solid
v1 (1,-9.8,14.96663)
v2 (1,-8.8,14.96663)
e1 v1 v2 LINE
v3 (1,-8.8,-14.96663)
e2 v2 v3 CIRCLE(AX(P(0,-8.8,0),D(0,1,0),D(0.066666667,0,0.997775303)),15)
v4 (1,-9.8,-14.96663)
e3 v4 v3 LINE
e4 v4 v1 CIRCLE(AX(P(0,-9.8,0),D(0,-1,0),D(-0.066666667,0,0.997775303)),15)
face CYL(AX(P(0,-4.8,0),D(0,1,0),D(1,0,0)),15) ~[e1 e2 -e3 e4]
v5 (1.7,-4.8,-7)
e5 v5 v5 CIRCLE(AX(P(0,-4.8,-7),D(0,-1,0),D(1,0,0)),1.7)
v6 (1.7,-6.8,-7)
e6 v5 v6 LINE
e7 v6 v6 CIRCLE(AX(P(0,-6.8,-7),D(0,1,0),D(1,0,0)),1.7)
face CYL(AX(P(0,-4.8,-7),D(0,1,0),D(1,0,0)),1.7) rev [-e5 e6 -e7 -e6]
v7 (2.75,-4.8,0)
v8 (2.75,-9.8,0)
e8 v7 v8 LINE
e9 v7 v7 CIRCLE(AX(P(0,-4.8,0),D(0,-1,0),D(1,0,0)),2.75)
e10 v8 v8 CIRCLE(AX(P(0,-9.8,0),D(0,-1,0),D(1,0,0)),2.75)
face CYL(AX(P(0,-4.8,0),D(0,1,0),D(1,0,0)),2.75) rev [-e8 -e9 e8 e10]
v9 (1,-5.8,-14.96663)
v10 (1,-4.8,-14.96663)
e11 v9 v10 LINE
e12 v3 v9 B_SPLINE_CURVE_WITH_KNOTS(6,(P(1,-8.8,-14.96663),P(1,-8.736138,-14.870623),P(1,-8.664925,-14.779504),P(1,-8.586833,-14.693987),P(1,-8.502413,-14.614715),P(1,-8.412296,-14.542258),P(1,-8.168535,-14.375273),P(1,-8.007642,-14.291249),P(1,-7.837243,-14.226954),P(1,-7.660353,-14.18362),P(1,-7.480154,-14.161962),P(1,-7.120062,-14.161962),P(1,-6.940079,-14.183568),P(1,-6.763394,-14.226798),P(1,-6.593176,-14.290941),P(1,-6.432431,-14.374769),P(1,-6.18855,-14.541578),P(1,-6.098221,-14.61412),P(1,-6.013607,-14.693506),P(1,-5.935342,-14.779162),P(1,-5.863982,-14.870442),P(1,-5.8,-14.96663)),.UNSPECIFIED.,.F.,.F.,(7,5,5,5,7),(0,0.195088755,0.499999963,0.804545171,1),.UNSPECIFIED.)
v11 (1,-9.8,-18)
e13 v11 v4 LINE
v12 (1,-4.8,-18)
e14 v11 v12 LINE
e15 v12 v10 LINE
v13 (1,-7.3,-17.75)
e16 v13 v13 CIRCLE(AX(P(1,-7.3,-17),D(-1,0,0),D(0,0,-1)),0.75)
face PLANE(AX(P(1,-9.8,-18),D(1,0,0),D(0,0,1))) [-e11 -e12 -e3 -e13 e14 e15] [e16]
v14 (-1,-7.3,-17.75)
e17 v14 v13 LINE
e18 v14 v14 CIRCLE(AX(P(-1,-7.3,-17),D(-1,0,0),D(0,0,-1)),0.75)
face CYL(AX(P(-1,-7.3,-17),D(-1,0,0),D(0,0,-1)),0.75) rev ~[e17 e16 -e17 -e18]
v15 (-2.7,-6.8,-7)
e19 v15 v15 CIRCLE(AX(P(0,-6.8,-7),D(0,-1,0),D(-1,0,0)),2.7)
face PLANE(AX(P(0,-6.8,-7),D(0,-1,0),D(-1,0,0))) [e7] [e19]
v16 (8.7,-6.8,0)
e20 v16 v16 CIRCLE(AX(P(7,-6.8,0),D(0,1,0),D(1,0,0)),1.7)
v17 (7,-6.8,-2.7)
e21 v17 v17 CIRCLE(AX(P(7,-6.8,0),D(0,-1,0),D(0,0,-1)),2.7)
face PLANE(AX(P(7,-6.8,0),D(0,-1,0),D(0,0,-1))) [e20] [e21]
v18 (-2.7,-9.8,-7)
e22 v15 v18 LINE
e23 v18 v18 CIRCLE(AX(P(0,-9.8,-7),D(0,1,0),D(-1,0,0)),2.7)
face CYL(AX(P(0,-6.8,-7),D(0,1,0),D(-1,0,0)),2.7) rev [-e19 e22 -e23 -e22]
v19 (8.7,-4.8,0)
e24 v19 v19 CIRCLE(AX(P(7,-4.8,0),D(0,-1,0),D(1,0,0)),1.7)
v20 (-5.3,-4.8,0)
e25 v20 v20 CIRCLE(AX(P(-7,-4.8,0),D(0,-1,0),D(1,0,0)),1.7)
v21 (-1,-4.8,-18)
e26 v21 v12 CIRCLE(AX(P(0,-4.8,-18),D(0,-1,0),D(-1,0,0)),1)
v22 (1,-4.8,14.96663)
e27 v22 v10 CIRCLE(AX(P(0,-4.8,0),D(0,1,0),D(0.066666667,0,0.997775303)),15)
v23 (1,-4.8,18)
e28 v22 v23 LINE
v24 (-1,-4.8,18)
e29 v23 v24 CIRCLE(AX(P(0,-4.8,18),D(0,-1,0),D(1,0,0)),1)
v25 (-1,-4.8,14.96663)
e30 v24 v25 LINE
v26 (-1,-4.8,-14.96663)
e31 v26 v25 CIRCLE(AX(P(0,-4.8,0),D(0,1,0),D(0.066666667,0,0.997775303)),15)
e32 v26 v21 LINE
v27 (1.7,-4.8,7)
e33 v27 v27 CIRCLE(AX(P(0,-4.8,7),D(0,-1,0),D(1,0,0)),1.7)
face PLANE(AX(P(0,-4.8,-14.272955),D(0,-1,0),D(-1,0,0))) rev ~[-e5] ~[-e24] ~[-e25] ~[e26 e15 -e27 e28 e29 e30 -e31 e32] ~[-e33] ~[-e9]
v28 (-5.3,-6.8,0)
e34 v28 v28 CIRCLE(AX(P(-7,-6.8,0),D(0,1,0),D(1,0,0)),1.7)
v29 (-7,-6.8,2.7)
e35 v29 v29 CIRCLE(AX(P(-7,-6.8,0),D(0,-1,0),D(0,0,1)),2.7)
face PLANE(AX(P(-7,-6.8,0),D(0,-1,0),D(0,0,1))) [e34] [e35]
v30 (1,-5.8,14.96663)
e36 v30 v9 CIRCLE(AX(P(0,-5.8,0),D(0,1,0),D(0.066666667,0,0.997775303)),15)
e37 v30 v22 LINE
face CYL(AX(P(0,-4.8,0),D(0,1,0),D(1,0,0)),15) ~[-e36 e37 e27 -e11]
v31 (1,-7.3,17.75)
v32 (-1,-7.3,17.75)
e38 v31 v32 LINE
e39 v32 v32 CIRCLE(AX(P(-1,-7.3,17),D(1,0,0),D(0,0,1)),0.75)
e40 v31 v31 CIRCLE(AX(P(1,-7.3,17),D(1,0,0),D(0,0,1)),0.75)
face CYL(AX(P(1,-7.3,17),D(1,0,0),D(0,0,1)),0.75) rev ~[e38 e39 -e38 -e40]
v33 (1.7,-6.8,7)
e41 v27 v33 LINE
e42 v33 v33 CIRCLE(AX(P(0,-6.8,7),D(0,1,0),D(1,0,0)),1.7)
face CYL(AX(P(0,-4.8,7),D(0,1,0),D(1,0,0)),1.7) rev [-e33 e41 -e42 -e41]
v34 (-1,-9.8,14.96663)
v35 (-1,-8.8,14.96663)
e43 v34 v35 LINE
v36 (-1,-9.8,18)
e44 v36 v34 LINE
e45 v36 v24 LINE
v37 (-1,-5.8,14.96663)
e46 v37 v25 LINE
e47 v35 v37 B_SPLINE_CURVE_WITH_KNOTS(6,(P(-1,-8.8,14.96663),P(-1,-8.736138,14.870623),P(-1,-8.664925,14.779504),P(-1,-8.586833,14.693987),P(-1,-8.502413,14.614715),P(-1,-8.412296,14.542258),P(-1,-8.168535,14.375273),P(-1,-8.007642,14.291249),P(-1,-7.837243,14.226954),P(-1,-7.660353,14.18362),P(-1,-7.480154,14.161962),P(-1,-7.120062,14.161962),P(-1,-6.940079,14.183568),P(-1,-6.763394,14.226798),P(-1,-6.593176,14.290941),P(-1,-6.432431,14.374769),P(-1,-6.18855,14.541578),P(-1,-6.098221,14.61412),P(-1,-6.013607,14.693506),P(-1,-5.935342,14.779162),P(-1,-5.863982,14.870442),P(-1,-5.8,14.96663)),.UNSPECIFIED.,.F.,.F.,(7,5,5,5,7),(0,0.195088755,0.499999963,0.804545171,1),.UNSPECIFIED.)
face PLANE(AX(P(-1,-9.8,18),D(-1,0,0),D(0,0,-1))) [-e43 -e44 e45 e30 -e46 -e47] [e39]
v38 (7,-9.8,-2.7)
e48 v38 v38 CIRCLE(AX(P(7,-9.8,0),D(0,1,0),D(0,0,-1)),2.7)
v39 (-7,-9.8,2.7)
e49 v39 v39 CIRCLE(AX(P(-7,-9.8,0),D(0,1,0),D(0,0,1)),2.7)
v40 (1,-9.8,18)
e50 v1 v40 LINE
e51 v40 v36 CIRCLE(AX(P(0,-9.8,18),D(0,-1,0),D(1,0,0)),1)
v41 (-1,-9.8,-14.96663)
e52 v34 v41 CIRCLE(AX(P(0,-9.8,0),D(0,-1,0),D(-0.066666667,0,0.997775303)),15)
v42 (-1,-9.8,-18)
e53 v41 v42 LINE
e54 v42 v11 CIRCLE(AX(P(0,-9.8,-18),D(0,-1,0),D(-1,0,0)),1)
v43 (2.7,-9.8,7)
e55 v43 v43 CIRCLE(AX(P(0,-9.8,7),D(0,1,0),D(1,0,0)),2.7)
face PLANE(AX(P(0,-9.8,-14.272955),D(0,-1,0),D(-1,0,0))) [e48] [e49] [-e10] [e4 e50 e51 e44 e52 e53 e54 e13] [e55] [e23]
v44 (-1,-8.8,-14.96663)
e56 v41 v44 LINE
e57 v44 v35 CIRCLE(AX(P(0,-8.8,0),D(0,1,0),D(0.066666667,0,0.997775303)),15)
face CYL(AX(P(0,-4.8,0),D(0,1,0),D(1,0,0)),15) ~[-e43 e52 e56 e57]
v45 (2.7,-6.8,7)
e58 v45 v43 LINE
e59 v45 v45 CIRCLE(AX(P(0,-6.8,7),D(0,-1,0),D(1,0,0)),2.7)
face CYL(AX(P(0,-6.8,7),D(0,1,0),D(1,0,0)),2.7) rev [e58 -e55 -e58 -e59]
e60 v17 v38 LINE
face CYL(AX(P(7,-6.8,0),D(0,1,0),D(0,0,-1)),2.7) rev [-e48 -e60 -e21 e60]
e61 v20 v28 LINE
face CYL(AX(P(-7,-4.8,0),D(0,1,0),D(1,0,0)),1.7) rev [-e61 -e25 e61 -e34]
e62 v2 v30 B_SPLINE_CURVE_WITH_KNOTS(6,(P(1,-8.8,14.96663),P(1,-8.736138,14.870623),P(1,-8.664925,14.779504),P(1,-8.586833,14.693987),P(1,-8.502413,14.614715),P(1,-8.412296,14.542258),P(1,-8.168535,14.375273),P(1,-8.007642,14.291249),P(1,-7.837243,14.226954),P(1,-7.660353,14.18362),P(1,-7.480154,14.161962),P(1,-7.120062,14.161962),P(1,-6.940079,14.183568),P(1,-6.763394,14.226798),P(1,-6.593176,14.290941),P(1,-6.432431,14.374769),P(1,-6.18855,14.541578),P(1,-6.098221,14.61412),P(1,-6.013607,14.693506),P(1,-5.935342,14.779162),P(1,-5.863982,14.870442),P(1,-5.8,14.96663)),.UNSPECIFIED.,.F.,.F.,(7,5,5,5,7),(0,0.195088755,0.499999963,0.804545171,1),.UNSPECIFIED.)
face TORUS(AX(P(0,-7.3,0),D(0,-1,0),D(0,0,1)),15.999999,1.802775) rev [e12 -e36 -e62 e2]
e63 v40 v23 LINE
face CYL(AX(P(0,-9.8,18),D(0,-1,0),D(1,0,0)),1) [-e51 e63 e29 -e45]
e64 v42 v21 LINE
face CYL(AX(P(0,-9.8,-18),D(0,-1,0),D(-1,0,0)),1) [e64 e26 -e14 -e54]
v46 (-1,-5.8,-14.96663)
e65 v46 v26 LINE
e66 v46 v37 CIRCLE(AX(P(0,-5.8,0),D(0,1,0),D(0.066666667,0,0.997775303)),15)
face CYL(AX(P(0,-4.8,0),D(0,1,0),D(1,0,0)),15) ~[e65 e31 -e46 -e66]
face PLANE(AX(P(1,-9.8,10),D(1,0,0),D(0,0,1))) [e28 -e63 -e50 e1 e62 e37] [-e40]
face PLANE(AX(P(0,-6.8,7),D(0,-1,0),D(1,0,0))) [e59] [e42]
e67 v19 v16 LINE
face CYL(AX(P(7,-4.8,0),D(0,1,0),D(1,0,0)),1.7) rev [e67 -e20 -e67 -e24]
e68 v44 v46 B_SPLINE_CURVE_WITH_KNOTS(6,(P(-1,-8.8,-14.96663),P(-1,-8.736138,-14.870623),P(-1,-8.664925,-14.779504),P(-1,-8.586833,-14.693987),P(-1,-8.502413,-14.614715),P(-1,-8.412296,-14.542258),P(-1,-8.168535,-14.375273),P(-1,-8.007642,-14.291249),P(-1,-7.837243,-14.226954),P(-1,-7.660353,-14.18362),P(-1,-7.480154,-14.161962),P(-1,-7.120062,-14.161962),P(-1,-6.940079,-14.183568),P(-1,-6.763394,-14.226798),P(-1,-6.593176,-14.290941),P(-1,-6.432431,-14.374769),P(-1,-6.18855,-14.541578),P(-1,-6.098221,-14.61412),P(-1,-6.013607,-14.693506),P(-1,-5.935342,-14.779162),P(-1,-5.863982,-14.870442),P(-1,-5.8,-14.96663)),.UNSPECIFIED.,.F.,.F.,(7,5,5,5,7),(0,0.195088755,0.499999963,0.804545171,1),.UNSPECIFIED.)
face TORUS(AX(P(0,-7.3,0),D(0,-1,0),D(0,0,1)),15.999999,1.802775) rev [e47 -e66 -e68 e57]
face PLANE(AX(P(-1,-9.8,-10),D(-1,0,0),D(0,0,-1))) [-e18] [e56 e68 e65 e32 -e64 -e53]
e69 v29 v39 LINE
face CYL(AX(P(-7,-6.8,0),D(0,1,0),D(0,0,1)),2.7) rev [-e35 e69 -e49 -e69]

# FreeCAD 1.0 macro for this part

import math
import FreeCAD as App
import Part
import Sketcher

V = App.Vector
Q = App.Units.Quantity

doc = App.newDocument("Part")
body = doc.addObject("PartDesign::Body", "Body")

# Sketch on XZ plane
sketch1 = body.newObject("Sketcher::SketchObject", "Sketch")
sketch1.AttachmentSupport = (doc.getObject("XZ_Plane"), [""])
sketch1.MapMode = "FlatFace"
sketch1.addGeometry([
    Part.Circle(V(0, 0, 0), V(0, 0, 1), 15),  # 0
    Part.Circle(V(0, -7, 0), V(0, 0, 1), 1.7),  # 1
    Part.Circle(V(-7, 0, 0), V(0, 0, 1), 1.7),  # 2
    Part.Circle(V(0, 0, 0), V(0, 0, 1), 2.8),  # 3
    Part.Circle(V(7, 0, 0), V(0, 0, 1), 1.7),  # 4
    Part.Circle(V(0, 7, 0), V(0, 0, 1), 1.7),  # 5
], False)
sketch1.addConstraint([
    Sketcher.Constraint("Coincident", 0, 3, -1, 1),
    Sketcher.Constraint("Coincident", 3, 3, -1, 1),
    Sketcher.Constraint("Equal", 1, 2),
    Sketcher.Constraint("Equal", 2, 4),
    Sketcher.Constraint("Equal", 4, 5),
    Sketcher.Constraint("Symmetric", 2, 3, 4, 3, -1, 1),
    Sketcher.Constraint("Symmetric", 1, 3, 5, 3, -1, 1),
    Sketcher.Constraint("PointOnObject", 1, 3, -2),
    Sketcher.Constraint("PointOnObject", 2, 3, -1),
    Sketcher.Constraint("Diameter", 0, Q("30 mm")),
    Sketcher.Constraint("Diameter", 1, Q("3.4 mm")),
    Sketcher.Constraint("Diameter", 3, Q("5.5 mm")),
    Sketcher.Constraint("DistanceY", 1, 3, -1, 1, Q("7 mm")),
    Sketcher.Constraint("DistanceX", 2, 3, -1, 1, Q("7 mm")),
])
pad1 = body.newObject("PartDesign::Pad", "Pad")
pad1.Profile = sketch1
pad1.Length = 5

# Sketch on XZ plane
sketch2 = body.newObject("Sketcher::SketchObject", "Sketch001")
sketch2.AttachmentSupport = (doc.getObject("XZ_Plane"), [""])
sketch2.MapMode = "FlatFace"
sketch2.AttachmentOffset = App.Placement(V(0, 0, 2), App.Rotation())
sketch2.addGeometry(Part.Circle(V(0, 7, 0), V(0, 0, 1), 2.7), False)
sketch2.addConstraint([
    Sketcher.Constraint("PointOnObject", 0, 3, -2),
    Sketcher.Constraint("Diameter", 0, Q("5.4 mm")),
    Sketcher.Constraint("DistanceY", -1, 1, 0, 3, Q("7 mm")),
])
pocket1 = body.newObject("PartDesign::Pocket", "Pocket")
pocket1.Profile = sketch2
pocket1.Type = "ThroughAll"
pocket1.Reversed = True
doc.recompute()

polarpattern = body.newObject("PartDesign::PolarPattern", "PolarPattern")
polarpattern.Originals = [pocket1]
polarpattern.Axis = (doc.getObject("Y_Axis"), [""])
polarpattern.Angle = 360
polarpattern.Occurrences = 4
body.Tip = polarpattern

# Sketch on YZ plane
sketch3 = body.newObject("Sketcher::SketchObject", "Sketch002")
sketch3.AttachmentSupport = (doc.getObject("YZ_Plane"), [""])
sketch3.MapMode = "FlatFace"
sketch3.addGeometry([
    Part.ArcOfCircle(Part.Circle(V(-2.5, 16, 0), V(0, 0, 1), 1.8), math.radians(-146), math.radians(-34)),
    Part.LineSegment(V(-1, 15, 0), V(-4, 15, 0)),
], False)
sketch3.addConstraint([
    Sketcher.Constraint("Coincident", 0, 1, 1, 2),
    Sketcher.Constraint("Coincident", 1, 1, 0, 2),
    Sketcher.Constraint("Horizontal", 1),
    Sketcher.Constraint("DistanceX", 1, 2, 1, 1, Q("3 mm")),
    Sketcher.Constraint("DistanceY", -1, 1, 0, 3, Q("15.999999 mm")),
    Sketcher.Constraint("DistanceX", 0, 1, -1, 1, Q("4 mm")),
    Sketcher.Constraint("DistanceY", -1, 1, 0, 1, Q("15 mm")),
])
groove = body.newObject("PartDesign::Groove", "Groove")
groove.Profile = sketch3
groove.ReferenceAxis = (sketch3, ["H_Axis"])
groove.Angle = 360

# Sketch on XZ plane
sketch4 = body.newObject("Sketcher::SketchObject", "Sketch003")
sketch4.AttachmentSupport = (doc.getObject("XZ_Plane"), [""])
sketch4.MapMode = "FlatFace"
sketch4.AttachmentOffset = App.Placement(V(0, 0, 5), App.Rotation())
sketch4.addGeometry([
    Part.ArcOfCircle(Part.Circle(V(0, 18, 0), V(0, 0, 1), 1), math.radians(0), math.radians(180)),
    Part.LineSegment(V(-1, 18, 0), V(-1, 10, 0)),
    Part.LineSegment(V(-1, 10, 0), V(1, 10, 0)),
    Part.LineSegment(V(1, 10, 0), V(1, 18, 0)),
], False)
sketch4.addConstraint([
    Sketcher.Constraint("Tangent", 0, 2, 1, 1),
    Sketcher.Constraint("Coincident", 1, 2, 2, 1),
    Sketcher.Constraint("Coincident", 2, 2, 3, 1),
    Sketcher.Constraint("Tangent", 3, 2, 0, 1),
    Sketcher.Constraint("Vertical", 1),
    Sketcher.Constraint("Horizontal", 2),
    Sketcher.Constraint("Vertical", 3),
    Sketcher.Constraint("PointOnObject", 0, 3, -2),
    Sketcher.Constraint("Radius", 0, Q("1 mm")),
    Sketcher.Constraint("DistanceY", 1, 2, 1, 1, Q("8 mm")),
    Sketcher.Constraint("DistanceY", -1, 1, 0, 3, Q("18 mm")),
])
pad2 = body.newObject("PartDesign::Pad", "Pad001")
pad2.Profile = sketch4
pad2.Length = 5
pad2.Reversed = True

# Sketch on YZ plane
sketch5 = body.newObject("Sketcher::SketchObject", "Sketch004")
sketch5.AttachmentSupport = (doc.getObject("YZ_Plane"), [""])
sketch5.MapMode = "FlatFace"
sketch5.AttachmentOffset = App.Placement(V(0, 0, 1), App.Rotation())
sketch5.addGeometry(Part.Circle(V(-2.5, 17, 0), V(0, 0, 1), 0.8), False)
sketch5.addConstraint([
    Sketcher.Constraint("Diameter", 0, Q("1.5 mm")),
    Sketcher.Constraint("DistanceY", -1, 1, 0, 3, Q("17 mm")),
    Sketcher.Constraint("DistanceX", 0, 3, -1, 1, Q("2.5 mm")),
])
pocket2 = body.newObject("PartDesign::Pocket", "Pocket001")
pocket2.Profile = sketch5
pocket2.Length = 5
doc.recompute()

polarpattern2 = body.newObject("PartDesign::PolarPattern", "PolarPattern001")
polarpattern2.Originals = [pad2, pocket2]
polarpattern2.Axis = (doc.getObject("Y_Axis"), [""])
polarpattern2.Angle = 360
polarpattern2.Occurrences = 2
body.Tip = polarpattern2
body2 = doc.addObject("PartDesign::Body", "Body001")
doc.recompute()

body.Placement = App.Placement(V(0, -4.8, 0), App.Rotation(V(0, 0, 1), 0))
boolean = body2.newObject("PartDesign::Boolean", "Boolean")
boolean.Type = "Fuse"
boolean.addObjects([body])

doc.recompute()
